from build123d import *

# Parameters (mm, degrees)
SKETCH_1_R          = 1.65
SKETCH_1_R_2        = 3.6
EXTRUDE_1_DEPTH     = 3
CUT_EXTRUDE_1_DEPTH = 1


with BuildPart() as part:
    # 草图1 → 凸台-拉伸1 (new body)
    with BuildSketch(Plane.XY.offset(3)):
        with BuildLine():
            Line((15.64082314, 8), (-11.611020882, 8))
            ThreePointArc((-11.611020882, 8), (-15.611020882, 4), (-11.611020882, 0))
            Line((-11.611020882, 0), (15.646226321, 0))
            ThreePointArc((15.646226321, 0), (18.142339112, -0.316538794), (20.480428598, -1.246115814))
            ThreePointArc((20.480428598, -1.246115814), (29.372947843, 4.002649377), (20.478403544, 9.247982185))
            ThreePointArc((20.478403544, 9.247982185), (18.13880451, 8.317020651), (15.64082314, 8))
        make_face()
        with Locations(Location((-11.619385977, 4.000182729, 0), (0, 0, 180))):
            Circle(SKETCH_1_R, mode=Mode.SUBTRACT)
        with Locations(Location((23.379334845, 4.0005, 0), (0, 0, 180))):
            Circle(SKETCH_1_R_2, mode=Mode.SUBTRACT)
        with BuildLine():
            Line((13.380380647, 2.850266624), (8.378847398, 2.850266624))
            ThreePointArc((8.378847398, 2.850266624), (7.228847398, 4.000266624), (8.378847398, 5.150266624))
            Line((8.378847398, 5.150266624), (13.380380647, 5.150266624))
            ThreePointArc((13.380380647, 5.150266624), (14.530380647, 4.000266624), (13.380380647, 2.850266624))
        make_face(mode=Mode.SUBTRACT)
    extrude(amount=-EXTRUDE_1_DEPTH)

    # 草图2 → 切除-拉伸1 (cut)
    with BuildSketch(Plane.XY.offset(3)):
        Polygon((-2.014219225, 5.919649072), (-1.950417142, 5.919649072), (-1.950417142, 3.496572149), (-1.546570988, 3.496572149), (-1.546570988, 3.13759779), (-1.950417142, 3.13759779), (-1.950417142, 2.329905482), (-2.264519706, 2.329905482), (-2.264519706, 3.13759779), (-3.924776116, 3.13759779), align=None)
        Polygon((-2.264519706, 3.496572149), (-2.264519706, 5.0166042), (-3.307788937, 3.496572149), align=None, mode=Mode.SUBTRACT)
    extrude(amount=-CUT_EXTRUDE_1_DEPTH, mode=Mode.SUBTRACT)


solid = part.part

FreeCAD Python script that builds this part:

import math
import FreeCAD as App
import Part
import Sketcher
from FreeCAD import Vector
Q = App.Units.Quantity

doc = App.newDocument("Part")
params = doc.addObject("Spreadsheet::Sheet", "Params")
for row, (alias, value) in enumerate([
    ("sketch1_radius", "4 mm"),
    ("sketch1_radius2", "10 mm"),
    ("sketch1_diameter", "3.3 mm"),
    ("sketch1_diameter2", "7.2 mm"),
    ("sketch1_radius3", "1.15 mm"),
    ("pad1_length", "3 mm"),
    ("pocket1_length", "1 mm"),
], start=1):
    params.set(f"A{row}", alias)
    params.set(f"B{row}", "=" + value)
    params.setAlias(f"B{row}", alias)

body = doc.addObject("PartDesign::Body", "Body")

sketch1 = doc.addObject("Sketcher::SketchObject", "Sketch")
body.addObject(sketch1)
sketch1.AttachmentSupport = (doc.XY_Plane, [""])
sketch1.MapMode = "FlatFace"
sketch1.AttachmentOffset = App.Placement(Vector(0, 0, 3), App.Rotation())
sketch1.addGeometry(Part.LineSegment(Vector(15.6, 8, 0), Vector(-11.6, 8, 0)), False)
sketch1.addGeometry(Part.ArcOfCircle(Part.Circle(Vector(-11.6, 4, 0), Vector(0, 0, 1), 4), math.radians(90), math.radians(270)), False)
sketch1.addGeometry(Part.LineSegment(Vector(-11.6, 0, 0), Vector(15.6, 0, 0)), False)
sketch1.addGeometry(Part.ArcOfCircle(Part.Circle(Vector(15.6, -10, 0), Vector(0, 0, 1), 10), math.radians(61), math.radians(90)), False)
sketch1.addGeometry(Part.ArcOfCircle(Part.Circle(Vector(23.4, 4, 0), Vector(0, 0, 1), 6), math.radians(-119), math.radians(119)), False)
sketch1.addGeometry(Part.ArcOfCircle(Part.Circle(Vector(15.6, 18, 0), Vector(0, 0, 1), 10), math.radians(-90), math.radians(-61)), False)
sketch1.addGeometry(Part.Circle(Vector(-11.6, 4, 0), Vector(0, 0, 1), 1.6), False)
sketch1.addGeometry(Part.ArcOfCircle(Part.Circle(Vector(13.4, 4, 0), Vector(0, 0, 1), 1.1), math.radians(-90), math.radians(90)), False)
sketch1.addGeometry(Part.LineSegment(Vector(13.4, 2.9, 0), Vector(8.4, 2.9, 0)), False)
sketch1.addGeometry(Part.ArcOfCircle(Part.Circle(Vector(8.4, 4, 0), Vector(0, 0, 1), 1.1), math.radians(90), math.radians(270)), False)
sketch1.addGeometry(Part.LineSegment(Vector(8.4, 5.2, 0), Vector(13.4, 5.2, 0)), False)
sketch1.addGeometry(Part.Circle(Vector(23.4, 4, 0), Vector(0, 0, 1), 3.6), False)
sketch1.addConstraint(Sketcher.Constraint("Tangent", 0, 2, 1, 1))
sketch1.addConstraint(Sketcher.Constraint("Tangent", 1, 2, 2, 1))
sketch1.addConstraint(Sketcher.Constraint("Tangent", 2, 2, 3, 2))
sketch1.addConstraint(Sketcher.Constraint("Tangent", 3, 1, 4, 1))
sketch1.addConstraint(Sketcher.Constraint("Tangent", 4, 2, 5, 2))
sketch1.addConstraint(Sketcher.Constraint("Tangent", 5, 1, 0, 1))
sketch1.addConstraint(Sketcher.Constraint("Tangent", 7, 1, 8, 1))
sketch1.addConstraint(Sketcher.Constraint("Tangent", 8, 2, 9, 2))
sketch1.addConstraint(Sketcher.Constraint("Tangent", 9, 1, 10, 1))
sketch1.addConstraint(Sketcher.Constraint("Tangent", 10, 2, 7, 2))
sketch1.addConstraint(Sketcher.Constraint("Horizontal", 0))
sketch1.addConstraint(Sketcher.Constraint("Horizontal", 2))
sketch1.addConstraint(Sketcher.Constraint("Horizontal", 8))
sketch1.addConstraint(Sketcher.Constraint("Horizontal", 10))
sketch1.addConstraint(Sketcher.Constraint("Equal", 3, 5))
sketch1.addConstraint(Sketcher.Constraint("PointOnObject", 1, 2, -1))
sketch1.addConstraint(Sketcher.Constraint("Radius", 1, Q("4 mm")))
sketch1.addConstraint(Sketcher.Constraint("Radius", 3, Q("10 mm")))
sketch1.addConstraint(Sketcher.Constraint("Diameter", 6, Q("3.3 mm")))
sketch1.addConstraint(Sketcher.Constraint("Diameter", 11, Q("7.2 mm")))
sketch1.addConstraint(Sketcher.Constraint("Radius", 7, Q("1.15 mm")))
sketch1.addConstraint(Sketcher.Constraint("Radius", 4, Q("5.994606 mm")))
sketch1.addConstraint(Sketcher.Constraint("DistanceY", -1, 1, 11, 3, Q("4.0005 mm")))
sketch1.addConstraint(Sketcher.Constraint("DistanceX", 1, 3, 7, 3, Q("24.991402 mm")))
sketch1.addConstraint(Sketcher.Constraint("DistanceX", 0, 2, 0, 1, Q("27.251844 mm")))
sketch1.addConstraint(Sketcher.Constraint("DistanceX", 2, 1, 2, 2, Q("27.257247 mm")))
sketch1.addConstraint(Sketcher.Constraint("DistanceX", 8, 2, 8, 1, Q("5.001533 mm")))
sketch1.addConstraint(Sketcher.Constraint("DistanceX", 1, 3, -1, 1, Q("11.611021 mm")))
sketch1.addConstraint(Sketcher.Constraint("DistanceX", 6, 3, 5, 3, Q("27.260209 mm")))
sketch1.addConstraint(Sketcher.Constraint("DistanceY", 6, 3, 4, 3, Q("0.00131 mm")))
sketch1.addConstraint(Sketcher.Constraint("DistanceX", 3, 3, 11, 3, Q("7.733109 mm")))
sketch1.addConstraint(Sketcher.Constraint("DistanceY", -1, 1, 7, 3, Q("4.000267 mm")))
sketch1.setExpression("Constraints[16]", "Params.sketch1_radius")
sketch1.setExpression("Constraints[17]", "Params.sketch1_radius2")
sketch1.setExpression("Constraints[18]", "Params.sketch1_diameter")
sketch1.setExpression("Constraints[19]", "Params.sketch1_diameter2")
sketch1.setExpression("Constraints[20]", "Params.sketch1_radius3")
pad1 = doc.addObject("PartDesign::Pad", "Pad")
body.addObject(pad1)
pad1.Profile = sketch1
pad1.setExpression("Length", "Params.pad1_length")
pad1.Reversed = True

sketch2 = doc.addObject("Sketcher::SketchObject", "Sketch001")
body.addObject(sketch2)
sketch2.AttachmentSupport = (doc.XY_Plane, [""])
sketch2.MapMode = "FlatFace"
sketch2.AttachmentOffset = App.Placement(Vector(0, 0, 3), App.Rotation())
sketch2.addGeometry(Part.LineSegment(Vector(-1.95, 5.92, 0), Vector(-2.01, 5.92, 0)), False)
sketch2.addGeometry(Part.LineSegment(Vector(-2.01, 5.92, 0), Vector(-3.92, 3.14, 0)), False)
sketch2.addGeometry(Part.LineSegment(Vector(-3.92, 3.14, 0), Vector(-2.26, 3.14, 0)), False)
sketch2.addGeometry(Part.LineSegment(Vector(-2.26, 3.14, 0), Vector(-2.26, 2.33, 0)), False)
sketch2.addGeometry(Part.LineSegment(Vector(-2.26, 2.33, 0), Vector(-1.95, 2.33, 0)), False)
sketch2.addGeometry(Part.LineSegment(Vector(-1.95, 2.33, 0), Vector(-1.95, 3.14, 0)), False)
sketch2.addGeometry(Part.LineSegment(Vector(-1.95, 3.14, 0), Vector(-1.55, 3.14, 0)), False)
sketch2.addGeometry(Part.LineSegment(Vector(-1.55, 3.14, 0), Vector(-1.55, 3.5, 0)), False)
sketch2.addGeometry(Part.LineSegment(Vector(-1.55, 3.5, 0), Vector(-1.95, 3.5, 0)), False)
sketch2.addGeometry(Part.LineSegment(Vector(-1.95, 3.5, 0), Vector(-1.95, 5.92, 0)), False)
sketch2.addGeometry(Part.LineSegment(Vector(-2.26, 3.5, 0), Vector(-3.31, 3.5, 0)), False)
sketch2.addGeometry(Part.LineSegment(Vector(-3.31, 3.5, 0), Vector(-2.26, 5.02, 0)), False)
sketch2.addGeometry(Part.LineSegment(Vector(-2.26, 5.02, 0), Vector(-2.26, 3.5, 0)), False)
sketch2.addConstraint(Sketcher.Constraint("Coincident", 0, 2, 1, 1))
sketch2.addConstraint(Sketcher.Constraint("Coincident", 1, 2, 2, 1))
sketch2.addConstraint(Sketcher.Constraint("Coincident", 2, 2, 3, 1))
sketch2.addConstraint(Sketcher.Constraint("Coincident", 3, 2, 4, 1))
sketch2.addConstraint(Sketcher.Constraint("Coincident", 4, 2, 5, 1))
sketch2.addConstraint(Sketcher.Constraint("Coincident", 5, 2, 6, 1))
sketch2.addConstraint(Sketcher.Constraint("Coincident", 6, 2, 7, 1))
sketch2.addConstraint(Sketcher.Constraint("Coincident", 7, 2, 8, 1))
sketch2.addConstraint(Sketcher.Constraint("Coincident", 8, 2, 9, 1))
sketch2.addConstraint(Sketcher.Constraint("Coincident", 9, 2, 0, 1))
sketch2.addConstraint(Sketcher.Constraint("Coincident", 10, 2, 11, 1))
sketch2.addConstraint(Sketcher.Constraint("Coincident", 11, 2, 12, 1))
sketch2.addConstraint(Sketcher.Constraint("Coincident", 12, 2, 10, 1))
sketch2.addConstraint(Sketcher.Constraint("Horizontal", 0))
sketch2.addConstraint(Sketcher.Constraint("Horizontal", 2))
sketch2.addConstraint(Sketcher.Constraint("Vertical", 3))
sketch2.addConstraint(Sketcher.Constraint("Horizontal", 4))
sketch2.addConstraint(Sketcher.Constraint("Vertical", 5))
sketch2.addConstraint(Sketcher.Constraint("Horizontal", 6))
sketch2.addConstraint(Sketcher.Constraint("Vertical", 7))
sketch2.addConstraint(Sketcher.Constraint("Horizontal", 8))
sketch2.addConstraint(Sketcher.Constraint("Vertical", 9))
sketch2.addConstraint(Sketcher.Constraint("Horizontal", 10))
sketch2.addConstraint(Sketcher.Constraint("Vertical", 12))
sketch2.addConstraint(Sketcher.Constraint("Horizontal", 2, 2, 5, 2))
sketch2.addConstraint(Sketcher.Constraint("Horizontal", 8, 2, 10, 2))
sketch2.addConstraint(Sketcher.Constraint("Vertical", 5, 2, 8, 2))
sketch2.addConstraint(Sketcher.Constraint("Vertical", 3, 2, 11, 2))
sketch2.addConstraint(Sketcher.Constraint("DistanceX", 10, 2, 10, 1, Q("1.043269 mm")))
sketch2.addConstraint(Sketcher.Constraint("DistanceX", 2, 2, 0, 2, Q("0.2503 mm")))
sketch2.addConstraint(Sketcher.Constraint("DistanceX", 0, 2, 0, 1, Q("0.063802 mm")))
sketch2.addConstraint(Sketcher.Constraint("DistanceX", 2, 1, 2, 2, Q("1.660256 mm")))
sketch2.addConstraint(Sketcher.Constraint("DistanceX", 6, 1, 6, 2, Q("0.403846 mm")))
sketch2.addConstraint(Sketcher.Constraint("DistanceY", 3, 2, 3, 1, Q("0.807692 mm")))
sketch2.addConstraint(Sketcher.Constraint("DistanceY", 7, 1, 7, 2, Q("0.358974 mm")))
sketch2.addConstraint(Sketcher.Constraint("DistanceY", 9, 1, 9, 2, Q("2.423077 mm")))
sketch2.addConstraint(Sketcher.Constraint("DistanceY", 12, 2, 12, 1, Q("1.520032 mm")))
sketch2.addConstraint(Sketcher.Constraint("DistanceX", 0, 2, -1, 1, Q("2.014219 mm")))
sketch2.addConstraint(Sketcher.Constraint("DistanceY", -1, 1, 0, 2, Q("5.919649 mm")))
pocket1 = doc.addObject("PartDesign::Pocket", "Pocket")
body.addObject(pocket1)
pocket1.Profile = sketch2
pocket1.setExpression("Length", "Params.pocket1_length")

doc.recompute()
